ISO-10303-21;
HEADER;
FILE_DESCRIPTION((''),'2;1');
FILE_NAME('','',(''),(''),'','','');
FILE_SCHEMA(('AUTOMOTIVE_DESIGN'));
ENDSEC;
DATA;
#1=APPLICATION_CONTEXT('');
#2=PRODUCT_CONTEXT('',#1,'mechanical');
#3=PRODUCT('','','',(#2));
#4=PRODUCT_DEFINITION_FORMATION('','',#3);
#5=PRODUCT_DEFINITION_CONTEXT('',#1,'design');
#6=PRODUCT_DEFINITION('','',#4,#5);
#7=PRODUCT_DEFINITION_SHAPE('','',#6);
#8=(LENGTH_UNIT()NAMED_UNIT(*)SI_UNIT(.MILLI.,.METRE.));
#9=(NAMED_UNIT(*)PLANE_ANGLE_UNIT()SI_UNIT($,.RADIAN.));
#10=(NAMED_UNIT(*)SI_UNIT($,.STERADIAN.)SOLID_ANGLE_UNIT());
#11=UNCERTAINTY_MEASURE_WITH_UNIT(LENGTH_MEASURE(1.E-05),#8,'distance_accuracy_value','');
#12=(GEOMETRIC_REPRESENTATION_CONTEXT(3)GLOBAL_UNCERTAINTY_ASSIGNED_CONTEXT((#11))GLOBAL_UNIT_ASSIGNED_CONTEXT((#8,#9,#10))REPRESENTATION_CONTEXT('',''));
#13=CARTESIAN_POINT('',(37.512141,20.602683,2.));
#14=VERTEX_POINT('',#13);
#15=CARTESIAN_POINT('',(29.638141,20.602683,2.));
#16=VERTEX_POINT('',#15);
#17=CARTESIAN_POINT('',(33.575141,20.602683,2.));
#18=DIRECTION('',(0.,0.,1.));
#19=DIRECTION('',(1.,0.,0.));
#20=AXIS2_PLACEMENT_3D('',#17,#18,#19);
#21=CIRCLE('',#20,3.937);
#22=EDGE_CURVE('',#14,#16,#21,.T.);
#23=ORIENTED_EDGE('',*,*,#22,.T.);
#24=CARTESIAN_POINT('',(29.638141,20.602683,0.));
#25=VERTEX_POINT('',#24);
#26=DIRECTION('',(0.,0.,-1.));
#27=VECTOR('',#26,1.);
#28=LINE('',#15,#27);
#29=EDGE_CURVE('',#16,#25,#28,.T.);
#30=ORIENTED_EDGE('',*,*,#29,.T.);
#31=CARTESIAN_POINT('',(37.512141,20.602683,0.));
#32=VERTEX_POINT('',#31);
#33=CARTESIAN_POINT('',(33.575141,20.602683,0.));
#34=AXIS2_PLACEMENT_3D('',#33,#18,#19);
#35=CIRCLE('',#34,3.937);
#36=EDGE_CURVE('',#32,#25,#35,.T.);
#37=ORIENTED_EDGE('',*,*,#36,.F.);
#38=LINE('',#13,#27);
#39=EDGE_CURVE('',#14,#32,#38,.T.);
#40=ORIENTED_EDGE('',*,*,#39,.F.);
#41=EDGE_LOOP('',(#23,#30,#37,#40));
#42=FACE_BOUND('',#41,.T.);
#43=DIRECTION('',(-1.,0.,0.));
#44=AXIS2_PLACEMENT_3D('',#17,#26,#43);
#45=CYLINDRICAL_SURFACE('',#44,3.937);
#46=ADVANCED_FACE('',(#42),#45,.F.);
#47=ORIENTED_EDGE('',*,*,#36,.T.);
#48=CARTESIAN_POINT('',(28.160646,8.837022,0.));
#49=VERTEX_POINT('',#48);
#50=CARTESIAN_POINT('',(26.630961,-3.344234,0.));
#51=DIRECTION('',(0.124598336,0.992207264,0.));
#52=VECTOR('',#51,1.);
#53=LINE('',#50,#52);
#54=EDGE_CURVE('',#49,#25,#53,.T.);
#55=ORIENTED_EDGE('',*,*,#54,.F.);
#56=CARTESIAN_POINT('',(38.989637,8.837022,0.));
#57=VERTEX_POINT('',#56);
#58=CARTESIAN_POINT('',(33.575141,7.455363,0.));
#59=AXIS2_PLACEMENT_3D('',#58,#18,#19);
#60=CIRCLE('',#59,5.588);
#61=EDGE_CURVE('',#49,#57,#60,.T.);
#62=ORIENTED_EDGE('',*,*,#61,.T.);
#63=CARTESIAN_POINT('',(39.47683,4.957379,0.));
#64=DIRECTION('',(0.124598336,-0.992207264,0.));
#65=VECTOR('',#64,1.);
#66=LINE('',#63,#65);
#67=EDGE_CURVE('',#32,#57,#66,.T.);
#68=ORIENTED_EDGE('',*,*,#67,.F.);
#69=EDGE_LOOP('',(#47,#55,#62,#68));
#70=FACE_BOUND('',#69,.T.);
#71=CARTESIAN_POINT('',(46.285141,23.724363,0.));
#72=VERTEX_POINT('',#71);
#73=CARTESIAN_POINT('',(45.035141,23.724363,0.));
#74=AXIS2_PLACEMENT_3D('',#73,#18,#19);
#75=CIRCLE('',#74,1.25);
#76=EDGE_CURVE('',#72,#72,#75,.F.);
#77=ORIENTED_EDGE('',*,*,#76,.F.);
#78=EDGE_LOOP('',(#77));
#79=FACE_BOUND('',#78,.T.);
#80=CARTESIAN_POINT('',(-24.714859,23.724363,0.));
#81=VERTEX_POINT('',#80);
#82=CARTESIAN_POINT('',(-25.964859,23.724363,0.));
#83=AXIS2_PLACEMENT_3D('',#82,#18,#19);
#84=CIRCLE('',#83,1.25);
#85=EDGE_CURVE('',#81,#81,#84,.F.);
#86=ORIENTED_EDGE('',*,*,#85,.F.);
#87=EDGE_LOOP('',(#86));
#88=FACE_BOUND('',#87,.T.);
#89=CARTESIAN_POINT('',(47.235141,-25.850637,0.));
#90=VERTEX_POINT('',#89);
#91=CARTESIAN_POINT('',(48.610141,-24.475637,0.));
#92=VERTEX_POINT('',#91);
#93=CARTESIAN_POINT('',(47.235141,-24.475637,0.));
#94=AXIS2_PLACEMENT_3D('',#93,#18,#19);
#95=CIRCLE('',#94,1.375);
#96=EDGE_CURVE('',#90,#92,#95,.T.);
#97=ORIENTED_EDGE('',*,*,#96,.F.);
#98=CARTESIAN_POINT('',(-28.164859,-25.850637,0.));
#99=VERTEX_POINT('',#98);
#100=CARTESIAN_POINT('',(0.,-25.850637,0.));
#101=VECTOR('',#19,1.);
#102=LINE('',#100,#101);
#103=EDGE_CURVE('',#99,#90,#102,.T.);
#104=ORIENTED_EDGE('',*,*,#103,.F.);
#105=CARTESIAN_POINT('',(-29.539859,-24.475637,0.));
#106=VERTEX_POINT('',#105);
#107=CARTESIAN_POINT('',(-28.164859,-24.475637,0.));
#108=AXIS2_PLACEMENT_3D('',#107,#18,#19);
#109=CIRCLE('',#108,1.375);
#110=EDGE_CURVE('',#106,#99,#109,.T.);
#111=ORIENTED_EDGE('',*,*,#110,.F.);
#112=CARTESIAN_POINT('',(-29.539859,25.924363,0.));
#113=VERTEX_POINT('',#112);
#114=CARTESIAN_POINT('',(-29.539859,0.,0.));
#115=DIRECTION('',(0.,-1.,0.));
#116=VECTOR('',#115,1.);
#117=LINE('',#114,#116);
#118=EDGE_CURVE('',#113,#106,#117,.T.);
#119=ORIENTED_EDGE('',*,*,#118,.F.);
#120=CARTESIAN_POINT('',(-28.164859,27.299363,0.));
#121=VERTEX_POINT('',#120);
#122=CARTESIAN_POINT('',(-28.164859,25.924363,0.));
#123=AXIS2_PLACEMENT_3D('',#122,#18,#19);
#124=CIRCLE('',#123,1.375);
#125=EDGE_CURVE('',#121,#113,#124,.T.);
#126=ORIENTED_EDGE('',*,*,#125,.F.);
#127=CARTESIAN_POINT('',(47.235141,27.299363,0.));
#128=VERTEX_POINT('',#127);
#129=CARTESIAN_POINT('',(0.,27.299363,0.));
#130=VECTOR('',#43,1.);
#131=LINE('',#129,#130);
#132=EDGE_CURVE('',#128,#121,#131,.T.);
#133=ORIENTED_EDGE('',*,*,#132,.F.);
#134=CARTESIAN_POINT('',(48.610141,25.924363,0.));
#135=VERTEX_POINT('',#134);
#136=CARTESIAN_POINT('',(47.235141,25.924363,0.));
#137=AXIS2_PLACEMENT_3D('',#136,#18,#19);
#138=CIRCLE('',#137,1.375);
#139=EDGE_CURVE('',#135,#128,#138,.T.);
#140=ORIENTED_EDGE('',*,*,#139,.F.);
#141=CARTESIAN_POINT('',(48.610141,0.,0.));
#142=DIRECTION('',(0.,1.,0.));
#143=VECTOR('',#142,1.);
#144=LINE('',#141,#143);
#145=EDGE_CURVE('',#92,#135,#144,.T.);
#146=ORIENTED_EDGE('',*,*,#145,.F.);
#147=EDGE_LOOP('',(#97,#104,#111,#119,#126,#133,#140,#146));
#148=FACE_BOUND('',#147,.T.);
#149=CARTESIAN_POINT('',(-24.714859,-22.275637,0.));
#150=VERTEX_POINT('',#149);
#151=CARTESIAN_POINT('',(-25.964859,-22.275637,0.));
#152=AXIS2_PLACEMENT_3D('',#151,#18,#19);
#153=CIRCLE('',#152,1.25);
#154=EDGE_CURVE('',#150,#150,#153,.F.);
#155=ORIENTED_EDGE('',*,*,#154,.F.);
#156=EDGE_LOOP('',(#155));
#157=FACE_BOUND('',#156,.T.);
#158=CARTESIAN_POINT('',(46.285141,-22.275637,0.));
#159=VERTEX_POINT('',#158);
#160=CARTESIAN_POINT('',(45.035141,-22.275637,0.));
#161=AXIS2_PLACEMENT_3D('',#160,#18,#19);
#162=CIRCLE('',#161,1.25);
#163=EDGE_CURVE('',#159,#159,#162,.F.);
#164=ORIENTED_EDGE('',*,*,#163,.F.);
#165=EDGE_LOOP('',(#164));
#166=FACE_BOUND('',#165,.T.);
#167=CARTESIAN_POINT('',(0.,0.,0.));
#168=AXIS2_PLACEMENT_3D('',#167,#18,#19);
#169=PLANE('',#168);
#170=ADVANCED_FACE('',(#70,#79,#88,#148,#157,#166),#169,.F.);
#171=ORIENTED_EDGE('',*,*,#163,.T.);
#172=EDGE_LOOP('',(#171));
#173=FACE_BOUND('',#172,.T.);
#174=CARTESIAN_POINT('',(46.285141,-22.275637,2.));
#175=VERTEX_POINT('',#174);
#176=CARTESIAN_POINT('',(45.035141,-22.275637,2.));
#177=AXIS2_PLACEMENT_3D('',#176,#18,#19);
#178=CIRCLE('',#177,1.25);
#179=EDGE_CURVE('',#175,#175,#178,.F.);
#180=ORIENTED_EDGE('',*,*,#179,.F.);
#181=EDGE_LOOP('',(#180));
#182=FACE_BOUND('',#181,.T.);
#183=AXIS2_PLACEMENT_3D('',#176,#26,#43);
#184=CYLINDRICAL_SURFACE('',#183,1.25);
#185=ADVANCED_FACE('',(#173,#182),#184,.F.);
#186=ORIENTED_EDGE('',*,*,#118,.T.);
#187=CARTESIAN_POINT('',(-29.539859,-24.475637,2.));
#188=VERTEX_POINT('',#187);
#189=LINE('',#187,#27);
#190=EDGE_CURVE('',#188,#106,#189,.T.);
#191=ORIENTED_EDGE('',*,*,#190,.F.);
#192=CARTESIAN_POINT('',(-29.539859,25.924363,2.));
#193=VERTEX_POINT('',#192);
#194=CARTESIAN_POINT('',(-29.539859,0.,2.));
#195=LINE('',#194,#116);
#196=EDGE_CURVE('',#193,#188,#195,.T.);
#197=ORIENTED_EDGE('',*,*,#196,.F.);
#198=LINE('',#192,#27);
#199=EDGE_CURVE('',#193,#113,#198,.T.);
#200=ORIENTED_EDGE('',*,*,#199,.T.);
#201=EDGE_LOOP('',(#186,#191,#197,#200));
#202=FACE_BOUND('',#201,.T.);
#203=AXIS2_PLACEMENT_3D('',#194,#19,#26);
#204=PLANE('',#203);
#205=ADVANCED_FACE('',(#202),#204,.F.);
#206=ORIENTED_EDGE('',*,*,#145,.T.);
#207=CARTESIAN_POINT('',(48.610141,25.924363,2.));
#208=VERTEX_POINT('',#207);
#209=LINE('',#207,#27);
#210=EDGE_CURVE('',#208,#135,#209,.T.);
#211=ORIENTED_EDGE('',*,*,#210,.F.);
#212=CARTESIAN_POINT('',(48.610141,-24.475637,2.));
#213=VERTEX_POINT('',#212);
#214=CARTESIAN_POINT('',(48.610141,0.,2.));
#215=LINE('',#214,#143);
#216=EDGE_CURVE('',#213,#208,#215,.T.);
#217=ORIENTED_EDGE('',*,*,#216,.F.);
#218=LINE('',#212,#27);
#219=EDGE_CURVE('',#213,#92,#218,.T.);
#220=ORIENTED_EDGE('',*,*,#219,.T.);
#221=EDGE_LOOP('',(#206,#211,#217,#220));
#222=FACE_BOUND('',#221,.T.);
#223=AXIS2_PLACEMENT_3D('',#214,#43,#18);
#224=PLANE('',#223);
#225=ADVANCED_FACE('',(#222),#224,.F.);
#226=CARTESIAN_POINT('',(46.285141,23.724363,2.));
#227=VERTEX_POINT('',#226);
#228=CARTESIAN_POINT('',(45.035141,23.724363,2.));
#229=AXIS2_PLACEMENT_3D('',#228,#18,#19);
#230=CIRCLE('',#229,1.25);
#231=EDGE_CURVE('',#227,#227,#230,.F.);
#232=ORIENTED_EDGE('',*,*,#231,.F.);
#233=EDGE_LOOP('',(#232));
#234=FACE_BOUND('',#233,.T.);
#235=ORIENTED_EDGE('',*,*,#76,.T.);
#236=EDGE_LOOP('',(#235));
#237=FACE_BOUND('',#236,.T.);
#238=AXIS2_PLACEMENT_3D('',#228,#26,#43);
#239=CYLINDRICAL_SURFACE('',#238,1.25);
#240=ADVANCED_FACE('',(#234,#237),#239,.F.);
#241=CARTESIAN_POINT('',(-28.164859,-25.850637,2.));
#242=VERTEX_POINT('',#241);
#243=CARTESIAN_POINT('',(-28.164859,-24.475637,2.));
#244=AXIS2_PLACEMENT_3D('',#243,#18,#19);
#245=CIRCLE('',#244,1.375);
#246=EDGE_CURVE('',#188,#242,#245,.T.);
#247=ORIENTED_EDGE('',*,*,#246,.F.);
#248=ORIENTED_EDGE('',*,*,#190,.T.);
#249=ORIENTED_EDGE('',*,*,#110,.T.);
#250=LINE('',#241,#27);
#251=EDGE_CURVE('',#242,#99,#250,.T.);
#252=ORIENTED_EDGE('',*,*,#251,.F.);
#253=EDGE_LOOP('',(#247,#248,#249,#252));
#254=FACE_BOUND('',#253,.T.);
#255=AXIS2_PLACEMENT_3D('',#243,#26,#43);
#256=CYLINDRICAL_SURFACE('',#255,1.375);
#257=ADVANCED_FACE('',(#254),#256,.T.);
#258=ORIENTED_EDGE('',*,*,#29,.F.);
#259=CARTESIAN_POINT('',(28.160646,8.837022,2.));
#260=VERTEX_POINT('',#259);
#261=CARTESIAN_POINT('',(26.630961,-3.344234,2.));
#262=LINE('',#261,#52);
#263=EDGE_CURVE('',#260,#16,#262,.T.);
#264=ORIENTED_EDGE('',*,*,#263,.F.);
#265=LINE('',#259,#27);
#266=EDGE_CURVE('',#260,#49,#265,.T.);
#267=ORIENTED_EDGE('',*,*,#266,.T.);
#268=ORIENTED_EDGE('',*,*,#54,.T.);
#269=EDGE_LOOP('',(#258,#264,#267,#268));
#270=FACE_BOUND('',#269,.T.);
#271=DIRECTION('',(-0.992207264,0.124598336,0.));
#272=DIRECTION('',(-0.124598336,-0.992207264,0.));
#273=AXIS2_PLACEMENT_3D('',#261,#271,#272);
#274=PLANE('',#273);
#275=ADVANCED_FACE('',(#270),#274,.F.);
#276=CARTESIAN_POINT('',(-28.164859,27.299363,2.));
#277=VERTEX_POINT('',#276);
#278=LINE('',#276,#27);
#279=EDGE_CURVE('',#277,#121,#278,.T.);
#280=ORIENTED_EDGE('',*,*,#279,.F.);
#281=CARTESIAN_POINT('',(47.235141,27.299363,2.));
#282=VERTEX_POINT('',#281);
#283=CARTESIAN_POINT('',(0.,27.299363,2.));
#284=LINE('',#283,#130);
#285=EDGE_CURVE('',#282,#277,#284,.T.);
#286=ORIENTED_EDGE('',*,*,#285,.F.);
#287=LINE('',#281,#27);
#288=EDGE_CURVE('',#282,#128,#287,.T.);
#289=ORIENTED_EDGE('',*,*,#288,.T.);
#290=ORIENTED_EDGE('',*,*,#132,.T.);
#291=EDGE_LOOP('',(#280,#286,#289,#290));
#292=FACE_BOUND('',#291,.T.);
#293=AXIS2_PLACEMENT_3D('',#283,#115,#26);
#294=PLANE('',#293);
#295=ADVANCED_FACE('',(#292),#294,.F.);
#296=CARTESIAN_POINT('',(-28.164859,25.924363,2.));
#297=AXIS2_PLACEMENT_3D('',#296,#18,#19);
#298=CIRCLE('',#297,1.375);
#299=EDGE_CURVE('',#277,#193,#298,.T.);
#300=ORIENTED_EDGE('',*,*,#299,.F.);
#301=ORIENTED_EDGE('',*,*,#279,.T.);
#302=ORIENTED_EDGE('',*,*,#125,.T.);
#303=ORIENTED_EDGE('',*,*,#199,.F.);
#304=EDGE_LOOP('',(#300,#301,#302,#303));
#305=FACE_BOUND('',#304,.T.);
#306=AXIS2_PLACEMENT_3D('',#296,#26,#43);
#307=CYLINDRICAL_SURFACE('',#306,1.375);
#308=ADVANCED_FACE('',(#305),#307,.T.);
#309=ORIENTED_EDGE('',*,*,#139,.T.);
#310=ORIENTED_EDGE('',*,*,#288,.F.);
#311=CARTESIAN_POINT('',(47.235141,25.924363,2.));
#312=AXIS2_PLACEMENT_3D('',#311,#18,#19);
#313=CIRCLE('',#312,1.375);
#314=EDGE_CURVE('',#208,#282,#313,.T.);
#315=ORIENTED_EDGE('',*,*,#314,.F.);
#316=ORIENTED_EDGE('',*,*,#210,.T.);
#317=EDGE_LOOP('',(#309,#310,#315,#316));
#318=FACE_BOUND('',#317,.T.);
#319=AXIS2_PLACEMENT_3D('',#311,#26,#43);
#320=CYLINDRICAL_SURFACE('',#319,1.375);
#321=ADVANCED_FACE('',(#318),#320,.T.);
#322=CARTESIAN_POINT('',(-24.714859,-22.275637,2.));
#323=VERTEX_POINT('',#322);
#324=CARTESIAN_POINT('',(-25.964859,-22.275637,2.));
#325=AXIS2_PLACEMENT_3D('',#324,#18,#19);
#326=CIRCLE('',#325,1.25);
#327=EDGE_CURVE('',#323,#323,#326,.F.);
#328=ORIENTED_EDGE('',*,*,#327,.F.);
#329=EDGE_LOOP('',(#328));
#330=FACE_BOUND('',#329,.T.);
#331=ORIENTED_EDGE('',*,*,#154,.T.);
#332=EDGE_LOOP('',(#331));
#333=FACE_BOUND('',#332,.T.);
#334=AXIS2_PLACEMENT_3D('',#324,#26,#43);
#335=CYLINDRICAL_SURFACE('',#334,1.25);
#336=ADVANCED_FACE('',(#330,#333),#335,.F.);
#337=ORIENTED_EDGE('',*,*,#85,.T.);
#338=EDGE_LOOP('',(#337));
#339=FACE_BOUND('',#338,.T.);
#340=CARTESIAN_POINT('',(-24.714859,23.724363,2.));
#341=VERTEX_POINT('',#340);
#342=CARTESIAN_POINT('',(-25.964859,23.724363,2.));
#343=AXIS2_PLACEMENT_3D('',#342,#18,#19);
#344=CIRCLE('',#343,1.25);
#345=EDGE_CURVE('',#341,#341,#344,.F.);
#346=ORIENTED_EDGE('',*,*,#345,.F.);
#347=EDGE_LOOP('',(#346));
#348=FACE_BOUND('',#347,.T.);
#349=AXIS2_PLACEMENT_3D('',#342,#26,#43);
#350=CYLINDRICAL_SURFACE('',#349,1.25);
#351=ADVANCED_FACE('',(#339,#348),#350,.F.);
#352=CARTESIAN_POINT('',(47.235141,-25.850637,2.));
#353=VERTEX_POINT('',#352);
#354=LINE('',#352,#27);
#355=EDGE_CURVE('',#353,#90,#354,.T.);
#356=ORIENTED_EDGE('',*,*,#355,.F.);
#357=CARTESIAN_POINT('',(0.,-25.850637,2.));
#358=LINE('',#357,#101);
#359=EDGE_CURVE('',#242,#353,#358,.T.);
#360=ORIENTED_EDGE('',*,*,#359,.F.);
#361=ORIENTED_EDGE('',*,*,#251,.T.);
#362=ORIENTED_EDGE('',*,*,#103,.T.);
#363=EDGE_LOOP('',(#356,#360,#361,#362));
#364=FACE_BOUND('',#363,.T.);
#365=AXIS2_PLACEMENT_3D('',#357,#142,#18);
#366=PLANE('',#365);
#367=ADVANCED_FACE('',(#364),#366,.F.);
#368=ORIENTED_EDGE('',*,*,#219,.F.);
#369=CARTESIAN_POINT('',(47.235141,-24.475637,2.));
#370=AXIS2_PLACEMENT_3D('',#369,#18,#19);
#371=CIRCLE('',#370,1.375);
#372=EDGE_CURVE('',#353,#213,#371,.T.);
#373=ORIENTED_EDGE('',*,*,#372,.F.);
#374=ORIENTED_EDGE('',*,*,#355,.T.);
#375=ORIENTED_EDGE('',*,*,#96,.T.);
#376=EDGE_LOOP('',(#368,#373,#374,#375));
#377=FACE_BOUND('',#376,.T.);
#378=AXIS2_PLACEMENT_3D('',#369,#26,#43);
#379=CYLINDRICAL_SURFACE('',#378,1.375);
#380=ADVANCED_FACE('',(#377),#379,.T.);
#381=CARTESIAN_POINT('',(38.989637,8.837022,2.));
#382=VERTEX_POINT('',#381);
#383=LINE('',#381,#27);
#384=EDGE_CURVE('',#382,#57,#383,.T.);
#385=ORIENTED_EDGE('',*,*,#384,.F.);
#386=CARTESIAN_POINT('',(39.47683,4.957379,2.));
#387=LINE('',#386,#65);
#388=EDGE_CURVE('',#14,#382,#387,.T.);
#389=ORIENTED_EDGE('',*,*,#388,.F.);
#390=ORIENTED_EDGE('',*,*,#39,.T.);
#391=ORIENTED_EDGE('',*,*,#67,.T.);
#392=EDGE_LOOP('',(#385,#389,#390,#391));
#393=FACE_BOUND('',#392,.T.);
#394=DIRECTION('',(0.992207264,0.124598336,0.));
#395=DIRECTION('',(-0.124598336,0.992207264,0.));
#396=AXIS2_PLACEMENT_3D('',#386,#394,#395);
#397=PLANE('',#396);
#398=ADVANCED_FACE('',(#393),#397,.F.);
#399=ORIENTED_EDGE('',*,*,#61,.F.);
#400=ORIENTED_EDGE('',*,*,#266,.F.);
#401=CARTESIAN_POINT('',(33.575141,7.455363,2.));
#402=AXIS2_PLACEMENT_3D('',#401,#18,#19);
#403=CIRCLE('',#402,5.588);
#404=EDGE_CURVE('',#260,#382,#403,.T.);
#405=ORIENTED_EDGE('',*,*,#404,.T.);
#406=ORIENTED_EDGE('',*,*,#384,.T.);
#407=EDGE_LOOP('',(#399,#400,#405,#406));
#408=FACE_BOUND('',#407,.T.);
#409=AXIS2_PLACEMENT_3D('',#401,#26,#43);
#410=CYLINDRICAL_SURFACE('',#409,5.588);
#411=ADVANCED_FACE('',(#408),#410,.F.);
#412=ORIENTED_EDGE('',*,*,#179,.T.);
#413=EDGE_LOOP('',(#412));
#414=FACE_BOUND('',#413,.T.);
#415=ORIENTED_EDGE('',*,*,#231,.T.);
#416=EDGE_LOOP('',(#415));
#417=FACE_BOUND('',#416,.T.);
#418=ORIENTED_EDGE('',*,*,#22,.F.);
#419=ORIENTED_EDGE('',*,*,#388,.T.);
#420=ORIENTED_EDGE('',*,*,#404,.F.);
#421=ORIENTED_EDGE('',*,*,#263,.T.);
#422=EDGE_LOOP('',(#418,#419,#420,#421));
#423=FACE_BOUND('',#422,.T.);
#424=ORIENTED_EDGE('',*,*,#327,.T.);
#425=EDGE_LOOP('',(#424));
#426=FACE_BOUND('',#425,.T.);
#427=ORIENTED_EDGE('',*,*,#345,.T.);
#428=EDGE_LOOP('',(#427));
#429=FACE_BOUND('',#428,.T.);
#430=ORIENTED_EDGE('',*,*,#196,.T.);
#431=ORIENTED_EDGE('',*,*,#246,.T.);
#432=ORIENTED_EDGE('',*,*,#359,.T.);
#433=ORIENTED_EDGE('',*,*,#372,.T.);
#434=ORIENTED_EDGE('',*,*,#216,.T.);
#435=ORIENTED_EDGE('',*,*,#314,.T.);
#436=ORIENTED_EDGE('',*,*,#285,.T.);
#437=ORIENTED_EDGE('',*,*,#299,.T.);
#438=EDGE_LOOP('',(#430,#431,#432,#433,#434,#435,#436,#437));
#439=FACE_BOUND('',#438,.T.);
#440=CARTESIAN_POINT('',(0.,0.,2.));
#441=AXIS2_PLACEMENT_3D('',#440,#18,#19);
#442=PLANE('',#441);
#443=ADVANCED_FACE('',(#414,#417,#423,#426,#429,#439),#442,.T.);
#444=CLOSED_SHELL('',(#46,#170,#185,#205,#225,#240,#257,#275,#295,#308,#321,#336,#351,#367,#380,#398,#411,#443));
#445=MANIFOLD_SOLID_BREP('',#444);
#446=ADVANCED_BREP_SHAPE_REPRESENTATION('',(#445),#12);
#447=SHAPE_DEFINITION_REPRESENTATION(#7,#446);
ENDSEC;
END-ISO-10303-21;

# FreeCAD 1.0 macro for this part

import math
import FreeCAD as App
import Part
import Sketcher
from FreeCAD import Vector
Q = App.Units.Quantity

doc = App.newDocument("Part")
body = doc.addObject("PartDesign::Body", "Body")

# Sketch on XY plane
sketch1 = body.newObject("Sketcher::SketchObject", "Sketch")
sketch1.AttachmentSupport = (doc.getObject("XY_Plane"), [""])
sketch1.MapMode = "FlatFace"
sketch1.addGeometry(Part.ArcOfCircle(Part.Circle(Vector(47.235141, 25.924363, 0), Vector(0, 0, 1), 1.375), math.radians(0), math.radians(90)), False)
sketch1.addGeometry(Part.LineSegment(Vector(47.235141, 27.299363, 0), Vector(-28.164859, 27.299363, 0)), False)
sketch1.addGeometry(Part.ArcOfCircle(Part.Circle(Vector(-28.164859, 25.924363, 0), Vector(0, 0, 1), 1.375), math.radians(90), math.radians(180)), False)
sketch1.addGeometry(Part.LineSegment(Vector(-29.539859, 25.924363, 0), Vector(-29.539859, -24.475637, 0)), False)
sketch1.addGeometry(Part.ArcOfCircle(Part.Circle(Vector(-28.164859, -24.475637, 0), Vector(0, 0, 1), 1.375), math.radians(180), math.radians(270)), False)
sketch1.addGeometry(Part.LineSegment(Vector(-28.164859, -25.850637, 0), Vector(47.235141, -25.850637, 0)), False)
sketch1.addGeometry(Part.ArcOfCircle(Part.Circle(Vector(47.235141, -24.475637, 0), Vector(0, 0, 1), 1.375), math.radians(-90), math.radians(0)), False)
sketch1.addGeometry(Part.LineSegment(Vector(48.610141, -24.475637, 0), Vector(48.610141, 25.924363, 0)), False)
sketch1.addGeometry(Part.Circle(Vector(-25.964859, -22.275637, 0), Vector(0, 0, 1), 1.25), False)
sketch1.addGeometry(Part.Circle(Vector(45.035141, -22.275637, 0), Vector(0, 0, 1), 1.25), False)
sketch1.addGeometry(Part.Circle(Vector(-25.964859, 23.724363, 0), Vector(0, 0, 1), 1.25), False)
sketch1.addGeometry(Part.LineSegment(Vector(28.160646, 8.837022, 0), Vector(29.638141, 20.602683, 0)), False)
sketch1.addGeometry(Part.ArcOfCircle(Part.Circle(Vector(33.575141, 20.602683, 0), Vector(0, 0, 1), 3.937), math.radians(0), math.radians(180)), False)
sketch1.addGeometry(Part.LineSegment(Vector(37.512141, 20.602683, 0), Vector(38.989637, 8.837022, 0)), False)
sketch1.addGeometry(Part.ArcOfCircle(Part.Circle(Vector(33.575141, 7.455363, 0), Vector(0, 0, 1), 5.588), math.radians(165.684878), math.radians(374.315122)), False)
sketch1.addGeometry(Part.Circle(Vector(45.035141, 23.724363, 0), Vector(0, 0, 1), 1.25), False)
sketch1.addConstraint(Sketcher.Constraint("Tangent", 0, 2, 1, 1))
sketch1.addConstraint(Sketcher.Constraint("Tangent", 1, 2, 2, 1))
sketch1.addConstraint(Sketcher.Constraint("Tangent", 2, 2, 3, 1))
sketch1.addConstraint(Sketcher.Constraint("Tangent", 3, 2, 4, 1))
sketch1.addConstraint(Sketcher.Constraint("Tangent", 4, 2, 5, 1))
sketch1.addConstraint(Sketcher.Constraint("Tangent", 5, 2, 6, 1))
sketch1.addConstraint(Sketcher.Constraint("Tangent", 6, 2, 7, 1))
sketch1.addConstraint(Sketcher.Constraint("Tangent", 7, 2, 0, 1))
sketch1.addConstraint(Sketcher.Constraint("Coincident", 11, 2, 12, 2))
sketch1.addConstraint(Sketcher.Constraint("Coincident", 12, 1, 13, 1))
sketch1.addConstraint(Sketcher.Constraint("Coincident", 13, 2, 14, 2))
sketch1.addConstraint(Sketcher.Constraint("Coincident", 14, 1, 11, 1))
sketch1.addConstraint(Sketcher.Constraint("Horizontal", 1))
sketch1.addConstraint(Sketcher.Constraint("Vertical", 3))
sketch1.addConstraint(Sketcher.Constraint("Horizontal", 5))
sketch1.addConstraint(Sketcher.Constraint("Vertical", 7))
sketch1.addConstraint(Sketcher.Constraint("Equal", 0, 2))
sketch1.addConstraint(Sketcher.Constraint("Equal", 2, 4))
sketch1.addConstraint(Sketcher.Constraint("Equal", 4, 6))
sketch1.addConstraint(Sketcher.Constraint("Equal", 8, 9))
sketch1.addConstraint(Sketcher.Constraint("Equal", 9, 10))
sketch1.addConstraint(Sketcher.Constraint("Equal", 10, 15))
sketch1.addConstraint(Sketcher.Constraint("Horizontal", 8, 3, 9, 3))
sketch1.addConstraint(Sketcher.Constraint("Horizontal", 10, 3, 15, 3))
sketch1.addConstraint(Sketcher.Constraint("Horizontal", 12, 3, 11, 2))
sketch1.addConstraint(Sketcher.Constraint("Horizontal", 11, 2, 12, 1))
sketch1.addConstraint(Sketcher.Constraint("Horizontal", 13, 2, 14, 1))
sketch1.addConstraint(Sketcher.Constraint("Vertical", 8, 3, 10, 3))
sketch1.addConstraint(Sketcher.Constraint("Vertical", 12, 3, 14, 3))
sketch1.addConstraint(Sketcher.Constraint("Vertical", 9, 3, 15, 3))
sketch1.addConstraint(Sketcher.Constraint("Diameter", 8, Q("2.5 mm")))
sketch1.addConstraint(Sketcher.Constraint("DistanceX", 1, 2, 1, 1, Q("75.4 mm")))
sketch1.addConstraint(Sketcher.Constraint("DistanceY", 3, 2, 3, 1, Q("50.4 mm")))
sketch1.addConstraint(Sketcher.Constraint("Radius", 0, Q("1.375 mm")))
sketch1.addConstraint(Sketcher.Constraint("Radius", 12, Q("3.937 mm")))
sketch1.addConstraint(Sketcher.Constraint("Radius", 14, Q("5.588 mm")))
sketch1.addConstraint(Sketcher.Constraint("DistanceX", 8, 3, 9, 3, Q("71 mm")))
sketch1.addConstraint(Sketcher.Constraint("DistanceY", 8, 3, 10, 3, Q("46 mm")))
sketch1.addConstraint(Sketcher.Constraint("DistanceX", 4, 3, 8, 3, Q("2.2 mm")))
sketch1.addConstraint(Sketcher.Constraint("DistanceY", 4, 3, 8, 3, Q("2.2 mm")))
sketch1.addConstraint(Sketcher.Constraint("DistanceX", 12, 3, 0, 3, Q("13.66 mm")))
sketch1.addConstraint(Sketcher.Constraint("DistanceY", 14, 3, 0, 3, Q("18.469 mm")))
sketch1.addConstraint(Sketcher.Constraint("DistanceX", -1, 1, 0, 3, Q("47.235141 mm")))
sketch1.addConstraint(Sketcher.Constraint("DistanceY", 12, 3, 0, 3, Q("5.32168 mm")))
sketch1.addConstraint(Sketcher.Constraint("DistanceY", 14, 3, 13, 2, Q("1.38166 mm")))
sketch1.addConstraint(Sketcher.Constraint("DistanceY", -1, 1, 0, 3, Q("25.924363 mm")))
pad1 = body.newObject("PartDesign::Pad", "Pad")
pad1.Profile = sketch1
pad1.Length = 2

doc.recompute()
